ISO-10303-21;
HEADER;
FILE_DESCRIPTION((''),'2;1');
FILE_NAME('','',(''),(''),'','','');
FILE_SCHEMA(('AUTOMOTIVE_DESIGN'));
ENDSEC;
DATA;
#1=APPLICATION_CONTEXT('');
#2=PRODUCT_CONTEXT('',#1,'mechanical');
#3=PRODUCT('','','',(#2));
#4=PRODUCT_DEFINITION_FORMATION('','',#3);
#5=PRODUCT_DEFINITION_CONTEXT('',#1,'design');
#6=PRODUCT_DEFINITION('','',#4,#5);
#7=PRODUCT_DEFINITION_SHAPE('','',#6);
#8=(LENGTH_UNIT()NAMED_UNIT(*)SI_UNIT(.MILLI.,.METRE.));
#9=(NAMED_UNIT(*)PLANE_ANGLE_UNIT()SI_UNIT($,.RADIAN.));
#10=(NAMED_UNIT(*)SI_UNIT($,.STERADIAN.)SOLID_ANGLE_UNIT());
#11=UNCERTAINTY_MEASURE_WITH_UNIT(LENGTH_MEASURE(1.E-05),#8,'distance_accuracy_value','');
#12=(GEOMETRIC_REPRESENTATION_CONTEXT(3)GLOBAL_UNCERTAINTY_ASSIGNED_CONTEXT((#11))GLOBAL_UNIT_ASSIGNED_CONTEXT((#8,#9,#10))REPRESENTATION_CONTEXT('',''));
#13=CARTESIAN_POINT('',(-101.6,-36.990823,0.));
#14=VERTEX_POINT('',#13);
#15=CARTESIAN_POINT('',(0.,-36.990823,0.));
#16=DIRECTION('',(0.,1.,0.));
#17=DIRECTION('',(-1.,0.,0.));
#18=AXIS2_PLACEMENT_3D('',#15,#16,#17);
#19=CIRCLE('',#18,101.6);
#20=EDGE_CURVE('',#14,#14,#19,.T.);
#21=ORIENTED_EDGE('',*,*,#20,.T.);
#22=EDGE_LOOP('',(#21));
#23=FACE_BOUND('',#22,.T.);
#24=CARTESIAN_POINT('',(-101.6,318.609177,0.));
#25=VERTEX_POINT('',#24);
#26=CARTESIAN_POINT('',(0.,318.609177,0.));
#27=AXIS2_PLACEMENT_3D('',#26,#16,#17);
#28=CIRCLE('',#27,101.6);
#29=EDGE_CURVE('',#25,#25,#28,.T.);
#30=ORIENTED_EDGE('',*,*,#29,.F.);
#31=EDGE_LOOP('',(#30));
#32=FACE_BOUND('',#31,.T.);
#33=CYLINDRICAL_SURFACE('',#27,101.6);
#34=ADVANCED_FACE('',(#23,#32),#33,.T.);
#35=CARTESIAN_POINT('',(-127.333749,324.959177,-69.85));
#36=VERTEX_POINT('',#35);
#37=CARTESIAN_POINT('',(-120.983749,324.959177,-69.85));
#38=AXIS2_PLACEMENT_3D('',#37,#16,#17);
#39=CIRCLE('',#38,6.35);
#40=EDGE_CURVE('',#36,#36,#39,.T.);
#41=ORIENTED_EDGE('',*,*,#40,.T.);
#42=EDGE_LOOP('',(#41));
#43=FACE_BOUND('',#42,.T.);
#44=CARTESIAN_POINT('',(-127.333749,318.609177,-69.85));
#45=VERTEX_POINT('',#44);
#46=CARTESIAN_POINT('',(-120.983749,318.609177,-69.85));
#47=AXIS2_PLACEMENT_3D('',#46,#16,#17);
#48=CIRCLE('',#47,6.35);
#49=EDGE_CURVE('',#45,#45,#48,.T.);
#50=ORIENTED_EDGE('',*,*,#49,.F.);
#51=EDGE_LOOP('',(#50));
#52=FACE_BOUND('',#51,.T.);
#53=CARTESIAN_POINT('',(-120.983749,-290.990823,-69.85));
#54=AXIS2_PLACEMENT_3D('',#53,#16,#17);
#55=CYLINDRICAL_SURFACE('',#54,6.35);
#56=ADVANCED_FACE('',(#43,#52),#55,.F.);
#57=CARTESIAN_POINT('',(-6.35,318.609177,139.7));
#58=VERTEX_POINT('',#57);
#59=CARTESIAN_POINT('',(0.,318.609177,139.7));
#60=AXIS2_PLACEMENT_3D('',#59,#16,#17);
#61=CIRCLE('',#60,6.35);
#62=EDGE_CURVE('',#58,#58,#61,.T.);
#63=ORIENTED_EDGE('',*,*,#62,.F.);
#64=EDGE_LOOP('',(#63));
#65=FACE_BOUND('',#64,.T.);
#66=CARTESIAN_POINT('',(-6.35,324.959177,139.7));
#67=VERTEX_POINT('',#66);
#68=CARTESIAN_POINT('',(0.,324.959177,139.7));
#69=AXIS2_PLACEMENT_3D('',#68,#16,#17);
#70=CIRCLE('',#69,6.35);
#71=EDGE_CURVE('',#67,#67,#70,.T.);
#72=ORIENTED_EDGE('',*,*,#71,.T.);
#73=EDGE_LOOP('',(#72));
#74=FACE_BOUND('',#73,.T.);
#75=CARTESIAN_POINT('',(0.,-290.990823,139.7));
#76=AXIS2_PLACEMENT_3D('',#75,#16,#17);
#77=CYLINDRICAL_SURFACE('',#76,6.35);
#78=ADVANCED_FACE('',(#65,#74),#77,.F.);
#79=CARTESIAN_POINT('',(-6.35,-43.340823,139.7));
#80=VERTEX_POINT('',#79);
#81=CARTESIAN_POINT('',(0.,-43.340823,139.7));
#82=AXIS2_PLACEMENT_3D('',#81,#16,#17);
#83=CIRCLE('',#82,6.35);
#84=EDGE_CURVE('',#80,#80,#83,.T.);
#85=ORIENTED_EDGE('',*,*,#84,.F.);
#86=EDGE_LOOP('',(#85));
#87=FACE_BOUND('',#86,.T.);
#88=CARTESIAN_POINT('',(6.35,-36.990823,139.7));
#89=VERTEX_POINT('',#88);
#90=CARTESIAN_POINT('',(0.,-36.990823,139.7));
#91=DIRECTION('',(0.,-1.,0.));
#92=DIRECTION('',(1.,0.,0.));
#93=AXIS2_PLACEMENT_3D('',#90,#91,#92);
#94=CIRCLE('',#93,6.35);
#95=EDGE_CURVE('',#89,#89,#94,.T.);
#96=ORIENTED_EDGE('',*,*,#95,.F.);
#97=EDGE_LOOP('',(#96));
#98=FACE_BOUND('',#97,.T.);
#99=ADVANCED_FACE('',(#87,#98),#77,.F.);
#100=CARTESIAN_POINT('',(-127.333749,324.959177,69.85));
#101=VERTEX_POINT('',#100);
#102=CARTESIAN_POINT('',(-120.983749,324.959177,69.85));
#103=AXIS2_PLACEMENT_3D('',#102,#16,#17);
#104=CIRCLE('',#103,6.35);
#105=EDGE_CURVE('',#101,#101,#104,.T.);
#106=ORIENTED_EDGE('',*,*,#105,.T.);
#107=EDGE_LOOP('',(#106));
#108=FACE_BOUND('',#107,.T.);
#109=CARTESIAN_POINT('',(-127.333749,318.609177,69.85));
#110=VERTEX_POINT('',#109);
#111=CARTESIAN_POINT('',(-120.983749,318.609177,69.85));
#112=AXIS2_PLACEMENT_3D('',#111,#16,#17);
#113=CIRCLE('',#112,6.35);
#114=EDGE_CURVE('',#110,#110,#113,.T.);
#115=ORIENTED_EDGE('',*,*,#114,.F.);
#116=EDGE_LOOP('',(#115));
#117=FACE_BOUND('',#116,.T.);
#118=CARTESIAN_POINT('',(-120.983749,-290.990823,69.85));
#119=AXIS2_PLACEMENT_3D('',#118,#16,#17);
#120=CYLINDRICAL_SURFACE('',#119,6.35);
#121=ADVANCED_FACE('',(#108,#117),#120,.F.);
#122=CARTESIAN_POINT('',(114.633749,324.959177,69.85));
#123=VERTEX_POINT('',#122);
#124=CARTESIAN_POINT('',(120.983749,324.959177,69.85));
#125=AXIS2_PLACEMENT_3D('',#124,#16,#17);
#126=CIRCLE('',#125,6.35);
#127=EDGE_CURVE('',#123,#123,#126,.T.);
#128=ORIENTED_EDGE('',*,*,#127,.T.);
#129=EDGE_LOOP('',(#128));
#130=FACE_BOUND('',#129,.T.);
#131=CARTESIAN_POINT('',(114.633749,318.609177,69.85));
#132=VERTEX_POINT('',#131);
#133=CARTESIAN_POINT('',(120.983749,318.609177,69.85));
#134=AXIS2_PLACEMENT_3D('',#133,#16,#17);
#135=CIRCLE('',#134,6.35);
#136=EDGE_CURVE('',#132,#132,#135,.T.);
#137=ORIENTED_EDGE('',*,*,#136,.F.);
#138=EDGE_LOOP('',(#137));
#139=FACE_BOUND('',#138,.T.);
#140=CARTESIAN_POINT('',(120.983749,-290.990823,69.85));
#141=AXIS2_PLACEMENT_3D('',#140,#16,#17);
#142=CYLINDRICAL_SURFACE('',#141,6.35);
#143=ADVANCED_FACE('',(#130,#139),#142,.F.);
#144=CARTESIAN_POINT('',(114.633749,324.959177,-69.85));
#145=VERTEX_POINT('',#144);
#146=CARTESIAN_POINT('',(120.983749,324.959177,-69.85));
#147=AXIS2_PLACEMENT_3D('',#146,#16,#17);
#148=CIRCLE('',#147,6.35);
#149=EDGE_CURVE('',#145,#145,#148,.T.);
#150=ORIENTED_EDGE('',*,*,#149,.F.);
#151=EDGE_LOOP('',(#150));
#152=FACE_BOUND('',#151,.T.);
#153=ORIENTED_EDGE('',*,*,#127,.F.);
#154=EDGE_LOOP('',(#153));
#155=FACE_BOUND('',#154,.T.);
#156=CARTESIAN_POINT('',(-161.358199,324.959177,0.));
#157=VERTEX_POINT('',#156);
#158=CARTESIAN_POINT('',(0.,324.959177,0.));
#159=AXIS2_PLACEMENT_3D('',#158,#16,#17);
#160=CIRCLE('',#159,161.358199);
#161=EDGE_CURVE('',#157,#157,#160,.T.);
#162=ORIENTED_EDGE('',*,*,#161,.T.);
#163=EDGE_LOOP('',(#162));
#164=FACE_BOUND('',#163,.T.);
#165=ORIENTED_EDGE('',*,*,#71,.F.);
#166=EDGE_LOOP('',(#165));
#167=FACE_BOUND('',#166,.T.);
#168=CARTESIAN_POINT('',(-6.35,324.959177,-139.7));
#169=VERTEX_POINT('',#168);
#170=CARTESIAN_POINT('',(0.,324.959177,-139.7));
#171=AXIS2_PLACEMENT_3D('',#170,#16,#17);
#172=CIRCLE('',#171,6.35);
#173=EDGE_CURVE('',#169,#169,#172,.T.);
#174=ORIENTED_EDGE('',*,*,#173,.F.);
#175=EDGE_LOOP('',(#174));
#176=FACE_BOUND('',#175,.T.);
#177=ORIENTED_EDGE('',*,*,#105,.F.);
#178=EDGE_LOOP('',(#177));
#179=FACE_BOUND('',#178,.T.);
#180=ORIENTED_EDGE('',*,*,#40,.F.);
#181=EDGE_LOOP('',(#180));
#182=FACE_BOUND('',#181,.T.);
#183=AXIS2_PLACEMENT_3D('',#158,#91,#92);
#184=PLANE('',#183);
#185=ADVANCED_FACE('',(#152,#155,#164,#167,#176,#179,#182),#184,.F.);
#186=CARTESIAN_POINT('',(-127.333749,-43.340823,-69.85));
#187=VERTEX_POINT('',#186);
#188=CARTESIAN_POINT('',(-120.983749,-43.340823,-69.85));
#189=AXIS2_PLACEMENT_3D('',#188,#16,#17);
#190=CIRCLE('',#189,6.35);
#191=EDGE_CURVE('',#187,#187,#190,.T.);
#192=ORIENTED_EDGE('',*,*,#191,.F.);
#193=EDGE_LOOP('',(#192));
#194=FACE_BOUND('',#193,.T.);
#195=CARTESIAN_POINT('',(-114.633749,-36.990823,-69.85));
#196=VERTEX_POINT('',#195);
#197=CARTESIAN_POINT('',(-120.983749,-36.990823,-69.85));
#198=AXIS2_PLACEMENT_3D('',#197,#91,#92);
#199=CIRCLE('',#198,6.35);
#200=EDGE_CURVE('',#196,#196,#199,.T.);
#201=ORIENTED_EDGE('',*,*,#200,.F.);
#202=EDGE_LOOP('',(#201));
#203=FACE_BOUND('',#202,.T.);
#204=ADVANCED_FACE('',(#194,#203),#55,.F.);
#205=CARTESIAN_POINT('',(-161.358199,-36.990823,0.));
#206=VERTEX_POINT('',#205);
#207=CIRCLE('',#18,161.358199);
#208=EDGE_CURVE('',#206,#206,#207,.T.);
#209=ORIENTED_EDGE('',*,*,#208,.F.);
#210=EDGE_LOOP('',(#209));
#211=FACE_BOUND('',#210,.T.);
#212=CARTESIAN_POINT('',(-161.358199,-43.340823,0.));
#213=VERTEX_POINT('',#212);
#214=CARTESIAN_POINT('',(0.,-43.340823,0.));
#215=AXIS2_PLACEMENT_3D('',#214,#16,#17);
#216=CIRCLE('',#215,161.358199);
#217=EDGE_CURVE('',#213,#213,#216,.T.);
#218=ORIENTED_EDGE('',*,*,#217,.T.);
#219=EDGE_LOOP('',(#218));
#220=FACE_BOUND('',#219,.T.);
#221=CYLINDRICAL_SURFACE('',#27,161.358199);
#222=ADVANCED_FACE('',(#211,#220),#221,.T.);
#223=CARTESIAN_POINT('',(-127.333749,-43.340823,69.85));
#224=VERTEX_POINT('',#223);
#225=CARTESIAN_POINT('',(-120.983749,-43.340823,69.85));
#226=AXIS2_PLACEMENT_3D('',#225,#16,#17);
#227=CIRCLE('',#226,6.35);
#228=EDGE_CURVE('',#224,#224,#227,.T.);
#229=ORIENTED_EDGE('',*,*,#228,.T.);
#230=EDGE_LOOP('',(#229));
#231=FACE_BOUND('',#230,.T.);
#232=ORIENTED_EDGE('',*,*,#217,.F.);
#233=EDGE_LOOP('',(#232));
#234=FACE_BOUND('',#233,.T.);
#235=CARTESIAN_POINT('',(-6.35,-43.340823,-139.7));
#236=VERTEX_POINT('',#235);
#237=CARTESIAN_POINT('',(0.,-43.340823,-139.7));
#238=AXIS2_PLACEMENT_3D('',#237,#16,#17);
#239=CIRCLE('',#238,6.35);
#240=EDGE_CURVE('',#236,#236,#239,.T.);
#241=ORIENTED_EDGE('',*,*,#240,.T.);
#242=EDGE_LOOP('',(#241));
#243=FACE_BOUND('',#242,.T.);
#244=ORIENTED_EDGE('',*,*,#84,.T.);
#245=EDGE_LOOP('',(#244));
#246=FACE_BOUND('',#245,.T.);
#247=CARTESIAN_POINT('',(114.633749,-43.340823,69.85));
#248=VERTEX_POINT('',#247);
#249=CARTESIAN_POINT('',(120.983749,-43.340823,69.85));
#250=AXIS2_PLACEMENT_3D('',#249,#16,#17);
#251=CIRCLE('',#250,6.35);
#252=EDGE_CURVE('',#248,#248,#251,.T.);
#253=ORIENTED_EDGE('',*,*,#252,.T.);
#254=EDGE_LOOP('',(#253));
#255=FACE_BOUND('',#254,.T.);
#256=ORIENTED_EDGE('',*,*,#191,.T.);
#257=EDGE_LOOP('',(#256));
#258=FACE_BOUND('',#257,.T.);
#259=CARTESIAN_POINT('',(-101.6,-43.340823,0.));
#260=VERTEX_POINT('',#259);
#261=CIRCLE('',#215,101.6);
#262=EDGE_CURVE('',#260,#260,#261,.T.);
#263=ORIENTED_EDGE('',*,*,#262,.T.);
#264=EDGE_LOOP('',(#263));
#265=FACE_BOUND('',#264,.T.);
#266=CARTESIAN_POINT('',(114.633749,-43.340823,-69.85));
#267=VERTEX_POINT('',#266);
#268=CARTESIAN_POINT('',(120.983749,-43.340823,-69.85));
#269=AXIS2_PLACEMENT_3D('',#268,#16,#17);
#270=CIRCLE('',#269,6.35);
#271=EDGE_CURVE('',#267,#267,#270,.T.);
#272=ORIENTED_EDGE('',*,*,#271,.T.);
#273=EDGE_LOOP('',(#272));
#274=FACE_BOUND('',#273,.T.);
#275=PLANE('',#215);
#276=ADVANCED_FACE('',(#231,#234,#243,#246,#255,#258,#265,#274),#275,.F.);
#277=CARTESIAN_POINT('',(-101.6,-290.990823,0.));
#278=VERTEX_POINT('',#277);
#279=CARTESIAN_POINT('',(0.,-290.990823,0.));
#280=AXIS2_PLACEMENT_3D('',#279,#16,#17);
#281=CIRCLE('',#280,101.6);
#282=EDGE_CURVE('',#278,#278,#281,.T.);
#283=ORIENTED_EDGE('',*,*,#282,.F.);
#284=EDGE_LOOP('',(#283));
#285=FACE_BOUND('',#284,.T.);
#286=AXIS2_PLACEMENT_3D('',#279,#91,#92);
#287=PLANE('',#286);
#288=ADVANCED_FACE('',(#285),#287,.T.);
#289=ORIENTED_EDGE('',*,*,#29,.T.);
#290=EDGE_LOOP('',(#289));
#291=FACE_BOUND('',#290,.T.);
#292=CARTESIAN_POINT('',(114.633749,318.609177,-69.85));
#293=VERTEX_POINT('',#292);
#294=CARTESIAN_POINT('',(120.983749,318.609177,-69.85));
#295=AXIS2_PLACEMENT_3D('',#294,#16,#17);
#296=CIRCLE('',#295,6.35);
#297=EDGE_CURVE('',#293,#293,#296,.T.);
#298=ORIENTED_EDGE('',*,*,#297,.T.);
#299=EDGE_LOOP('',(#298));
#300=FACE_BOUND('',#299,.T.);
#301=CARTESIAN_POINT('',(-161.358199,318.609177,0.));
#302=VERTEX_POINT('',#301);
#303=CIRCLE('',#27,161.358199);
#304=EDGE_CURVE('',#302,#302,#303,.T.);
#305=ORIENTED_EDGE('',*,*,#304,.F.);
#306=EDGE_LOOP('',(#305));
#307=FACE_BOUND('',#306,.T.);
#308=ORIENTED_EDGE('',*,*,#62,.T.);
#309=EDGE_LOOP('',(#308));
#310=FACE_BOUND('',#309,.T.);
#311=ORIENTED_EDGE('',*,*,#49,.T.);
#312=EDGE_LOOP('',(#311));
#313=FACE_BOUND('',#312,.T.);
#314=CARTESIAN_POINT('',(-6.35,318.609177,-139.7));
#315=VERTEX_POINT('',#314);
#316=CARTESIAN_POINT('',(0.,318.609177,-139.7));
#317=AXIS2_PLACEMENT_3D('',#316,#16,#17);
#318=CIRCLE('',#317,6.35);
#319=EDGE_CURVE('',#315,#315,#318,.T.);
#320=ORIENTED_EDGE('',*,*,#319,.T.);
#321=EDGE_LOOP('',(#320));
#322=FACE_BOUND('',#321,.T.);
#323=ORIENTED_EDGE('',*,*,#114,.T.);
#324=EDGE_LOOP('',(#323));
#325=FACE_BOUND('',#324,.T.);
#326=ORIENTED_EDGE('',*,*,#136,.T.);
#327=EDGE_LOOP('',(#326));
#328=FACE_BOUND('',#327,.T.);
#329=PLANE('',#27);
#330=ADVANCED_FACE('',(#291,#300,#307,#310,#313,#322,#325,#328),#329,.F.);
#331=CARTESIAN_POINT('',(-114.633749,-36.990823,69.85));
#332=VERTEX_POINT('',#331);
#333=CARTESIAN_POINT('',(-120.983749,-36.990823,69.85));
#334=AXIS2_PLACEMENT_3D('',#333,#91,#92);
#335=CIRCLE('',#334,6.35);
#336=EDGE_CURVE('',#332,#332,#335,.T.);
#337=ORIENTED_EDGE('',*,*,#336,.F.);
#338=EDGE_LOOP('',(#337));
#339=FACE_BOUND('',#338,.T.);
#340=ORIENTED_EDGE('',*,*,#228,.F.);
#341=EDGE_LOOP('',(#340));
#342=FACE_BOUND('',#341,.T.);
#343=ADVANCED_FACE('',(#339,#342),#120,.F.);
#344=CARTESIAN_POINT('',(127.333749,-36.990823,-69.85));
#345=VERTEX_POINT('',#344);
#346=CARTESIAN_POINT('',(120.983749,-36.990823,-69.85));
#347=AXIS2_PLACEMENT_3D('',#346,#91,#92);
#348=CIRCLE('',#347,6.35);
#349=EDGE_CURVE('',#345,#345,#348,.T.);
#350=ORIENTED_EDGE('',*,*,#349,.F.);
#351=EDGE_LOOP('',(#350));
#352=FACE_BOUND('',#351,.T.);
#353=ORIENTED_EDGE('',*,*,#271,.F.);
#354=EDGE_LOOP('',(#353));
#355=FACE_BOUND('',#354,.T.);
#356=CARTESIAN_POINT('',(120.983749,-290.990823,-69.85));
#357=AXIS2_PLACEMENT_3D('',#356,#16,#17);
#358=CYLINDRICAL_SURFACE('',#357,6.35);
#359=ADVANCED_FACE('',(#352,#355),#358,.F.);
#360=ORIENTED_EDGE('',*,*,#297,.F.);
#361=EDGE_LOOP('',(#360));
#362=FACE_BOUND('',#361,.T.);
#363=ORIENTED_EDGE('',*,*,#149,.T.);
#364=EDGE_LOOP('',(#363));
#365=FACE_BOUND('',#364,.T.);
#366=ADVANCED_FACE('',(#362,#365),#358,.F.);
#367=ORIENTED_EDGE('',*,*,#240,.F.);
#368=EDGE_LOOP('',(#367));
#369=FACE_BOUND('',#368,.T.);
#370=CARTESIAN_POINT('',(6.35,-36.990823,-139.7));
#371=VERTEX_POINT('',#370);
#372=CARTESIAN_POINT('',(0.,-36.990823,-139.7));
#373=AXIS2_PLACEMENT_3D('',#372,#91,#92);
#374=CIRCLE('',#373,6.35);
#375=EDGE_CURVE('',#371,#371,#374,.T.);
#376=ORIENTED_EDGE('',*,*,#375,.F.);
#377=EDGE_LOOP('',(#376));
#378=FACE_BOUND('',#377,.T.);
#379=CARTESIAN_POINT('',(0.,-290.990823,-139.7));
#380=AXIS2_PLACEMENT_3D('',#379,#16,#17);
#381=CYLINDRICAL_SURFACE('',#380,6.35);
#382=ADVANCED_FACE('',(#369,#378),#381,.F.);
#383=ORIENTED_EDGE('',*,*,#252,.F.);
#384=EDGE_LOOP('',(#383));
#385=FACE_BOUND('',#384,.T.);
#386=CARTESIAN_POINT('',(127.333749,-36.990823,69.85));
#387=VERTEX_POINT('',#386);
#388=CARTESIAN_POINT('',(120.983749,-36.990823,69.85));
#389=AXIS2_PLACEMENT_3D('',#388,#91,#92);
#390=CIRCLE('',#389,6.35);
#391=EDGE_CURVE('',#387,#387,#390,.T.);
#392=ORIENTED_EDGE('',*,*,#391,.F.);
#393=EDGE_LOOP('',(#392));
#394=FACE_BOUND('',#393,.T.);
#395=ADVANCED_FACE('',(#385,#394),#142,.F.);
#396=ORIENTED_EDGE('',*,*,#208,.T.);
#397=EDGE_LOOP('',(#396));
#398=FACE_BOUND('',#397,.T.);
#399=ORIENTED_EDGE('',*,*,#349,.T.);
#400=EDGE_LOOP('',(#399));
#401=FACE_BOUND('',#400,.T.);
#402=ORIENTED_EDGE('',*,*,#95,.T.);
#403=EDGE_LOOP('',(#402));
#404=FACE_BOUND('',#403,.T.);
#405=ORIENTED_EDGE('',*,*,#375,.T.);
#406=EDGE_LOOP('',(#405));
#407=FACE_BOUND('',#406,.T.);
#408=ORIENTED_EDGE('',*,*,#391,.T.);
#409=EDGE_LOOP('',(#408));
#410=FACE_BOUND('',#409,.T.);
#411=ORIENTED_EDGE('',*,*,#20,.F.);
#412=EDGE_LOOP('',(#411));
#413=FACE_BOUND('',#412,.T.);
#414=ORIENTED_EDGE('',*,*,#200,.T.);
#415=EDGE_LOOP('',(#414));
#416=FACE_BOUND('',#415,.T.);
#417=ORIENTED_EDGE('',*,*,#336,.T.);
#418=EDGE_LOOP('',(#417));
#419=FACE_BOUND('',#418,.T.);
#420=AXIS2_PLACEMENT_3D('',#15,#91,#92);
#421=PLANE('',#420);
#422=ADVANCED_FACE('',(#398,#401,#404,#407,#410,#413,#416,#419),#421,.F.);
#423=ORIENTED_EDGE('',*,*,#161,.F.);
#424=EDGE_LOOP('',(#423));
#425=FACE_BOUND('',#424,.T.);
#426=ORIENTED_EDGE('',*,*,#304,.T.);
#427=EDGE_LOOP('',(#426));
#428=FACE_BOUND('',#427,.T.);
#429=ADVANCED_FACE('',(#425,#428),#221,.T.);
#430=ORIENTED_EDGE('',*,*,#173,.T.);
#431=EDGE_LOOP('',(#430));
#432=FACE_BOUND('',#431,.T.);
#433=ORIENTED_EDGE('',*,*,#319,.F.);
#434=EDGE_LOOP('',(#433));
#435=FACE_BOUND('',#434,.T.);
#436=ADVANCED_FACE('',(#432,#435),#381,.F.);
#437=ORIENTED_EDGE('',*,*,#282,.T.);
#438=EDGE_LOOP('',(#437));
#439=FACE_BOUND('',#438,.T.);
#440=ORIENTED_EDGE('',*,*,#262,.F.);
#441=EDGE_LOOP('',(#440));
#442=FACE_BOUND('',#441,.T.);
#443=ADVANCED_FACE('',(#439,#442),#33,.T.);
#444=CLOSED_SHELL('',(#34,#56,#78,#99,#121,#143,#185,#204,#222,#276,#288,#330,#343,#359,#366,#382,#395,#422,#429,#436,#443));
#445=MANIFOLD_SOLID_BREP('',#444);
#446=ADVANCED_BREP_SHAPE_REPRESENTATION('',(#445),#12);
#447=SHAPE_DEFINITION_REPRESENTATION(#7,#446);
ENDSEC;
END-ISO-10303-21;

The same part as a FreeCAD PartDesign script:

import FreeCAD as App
import Part
import Sketcher

V = App.Vector
Q = App.Units.Quantity


def add_polygon(sketch, points):
    """Adds a closed chain of lines whose ends are joined by coincident constraints."""
    first, n = sketch.GeometryCount, len(points)
    for a, b in zip(points, points[1:] + points[:1]):
        sketch.addGeometry(Part.LineSegment(App.Vector(*a, 0), App.Vector(*b, 0)), False)
    for i in range(n):
        sketch.addConstraint(Sketcher.Constraint("Coincident", first + i, 2, first + (i + 1) % n, 1))

doc = App.newDocument("Part")
params = doc.addObject("Spreadsheet::Sheet", "Params")
for row, (alias, value) in enumerate([
    ("sketch1_width", "4 in"),
    ("sketch1_height", "14 in"),
    ("sketch1_height2", "0.25 in"),
    ("revolution_angle", "360 deg"),
    ("sketch2_diameter", "0.5 in"),
], start=1):
    params.set(f"A{row}", alias)
    params.set(f"B{row}", "=" + value)
    params.setAlias(f"B{row}", alias)

body = doc.addObject("PartDesign::Body", "Body")

# Sketch on XY plane
sketch1 = body.newObject("Sketcher::SketchObject", "Sketch")
sketch1.AttachmentSupport = (doc.getObject("XY_Plane"), [""])
sketch1.MapMode = "FlatFace"
add_polygon(sketch1, [(101.6, -36.990823), (101.6, 318.609177), (161.358199, 318.609177), (161.358199, 324.959177), (0, 324.959177), (0, -290.990823), (101.6, -290.990823), (101.6, -43.340823), (161.358199, -43.340823), (161.358199, -36.990823)])  # lines 0-9
sketch1.addConstraint([
    Sketcher.Constraint("Vertical", 0),
    Sketcher.Constraint("Horizontal", 1),
    Sketcher.Constraint("Vertical", 2),
    Sketcher.Constraint("Horizontal", 3),
    Sketcher.Constraint("Vertical", 4),
    Sketcher.Constraint("Horizontal", 5),
    Sketcher.Constraint("Vertical", 6),
    Sketcher.Constraint("Horizontal", 7),
    Sketcher.Constraint("Vertical", 8),
    Sketcher.Constraint("Horizontal", 9),
    Sketcher.Constraint("PointOnObject", 3, 2, -2),
    Sketcher.Constraint("Vertical", 0, 2, 5, 2),
    Sketcher.Constraint("Vertical", 2, 2, 7, 2),
    Sketcher.Constraint("Equal", 2, 8),
    Sketcher.Constraint("DistanceX", 5, 1, 5, 2, Q("4 in")),
    Sketcher.Constraint("DistanceY", 0, 1, 0, 2, Q("14 in")),
    Sketcher.Constraint("DistanceY", 4, 2, 0, 2, Q("24 in")),
    Sketcher.Constraint("DistanceY", 2, 1, 2, 2, Q("0.25 in")),
    Sketcher.Constraint("DistanceX", 1, 1, 1, 2, 59.758199),
    Sketcher.Constraint("DistanceY", -1, 1, 0, 2, 318.609177),
])
sketch1.setExpression("Constraints[24]", "Params.sketch1_width")
sketch1.setExpression("Constraints[25]", "Params.sketch1_height")
sketch1.setExpression("Constraints[27]", "Params.sketch1_height2")
revolution = body.newObject("PartDesign::Revolution", "Revolution")
revolution.Profile = sketch1
revolution.ReferenceAxis = (sketch1, ["V_Axis"])
revolution.setExpression("Angle", "Params.revolution_angle")

# Sketch on XZ plane
sketch2 = body.newObject("Sketcher::SketchObject", "Sketch001")
sketch2.AttachmentSupport = (doc.getObject("XZ_Plane"), [""])
sketch2.MapMode = "FlatFace"
sketch2.AttachmentOffset = App.Placement(V(0, 0, -324.959177), App.Rotation())
sketch2.addGeometry([
    Part.Circle(V(0, -139.7, 0), V(0, 0, 1), 6.35),  # 0
    Part.Circle(V(120.983749, -69.85, 0), V(0, 0, 1), 6.35),  # 1
    Part.Circle(V(120.983749, 69.85, 0), V(0, 0, 1), 6.35),  # 2
    Part.Circle(V(0, 139.7, 0), V(0, 0, 1), 6.35),  # 3
    Part.Circle(V(-120.983749, 69.85, 0), V(0, 0, 1), 6.35),  # 4
    Part.Circle(V(-120.983749, -69.85, 0), V(0, 0, 1), 6.35),  # 5
], False)
sketch2.addConstraint([
    Sketcher.Constraint("Equal", 0, 1),
    Sketcher.Constraint("Equal", 1, 2),
    Sketcher.Constraint("Equal", 2, 3),
    Sketcher.Constraint("Equal", 3, 4),
    Sketcher.Constraint("Equal", 4, 5),
    Sketcher.Constraint("Symmetric", 0, 3, 3, 3, -1, 1),
    Sketcher.Constraint("Symmetric", 1, 3, 4, 3, -1, 1),
    Sketcher.Constraint("Symmetric", 2, 3, 5, 3, -1, 1),
    Sketcher.Constraint("Symmetric", 2, 3, 4, 3, -2),
    Sketcher.Constraint("PointOnObject", 0, 3, -2),
    Sketcher.Constraint("Diameter", 0, Q("0.5 in")),
    Sketcher.Constraint("DistanceY", 0, 3, 3, 3, Q("11 in")),
    Sketcher.Constraint("DistanceY", 1, 3, 2, 3, Q("5.5 in")),
    Sketcher.Constraint("DistanceX", -1, 1, 1, 3, 120.983749),
])
sketch2.setExpression("Constraints[10]", "Params.sketch2_diameter")
pocket1 = body.newObject("PartDesign::Pocket", "Pocket")
pocket1.Profile = sketch2
pocket1.Type = "ThroughAll"
pocket1.Reversed = True

doc.recompute()
